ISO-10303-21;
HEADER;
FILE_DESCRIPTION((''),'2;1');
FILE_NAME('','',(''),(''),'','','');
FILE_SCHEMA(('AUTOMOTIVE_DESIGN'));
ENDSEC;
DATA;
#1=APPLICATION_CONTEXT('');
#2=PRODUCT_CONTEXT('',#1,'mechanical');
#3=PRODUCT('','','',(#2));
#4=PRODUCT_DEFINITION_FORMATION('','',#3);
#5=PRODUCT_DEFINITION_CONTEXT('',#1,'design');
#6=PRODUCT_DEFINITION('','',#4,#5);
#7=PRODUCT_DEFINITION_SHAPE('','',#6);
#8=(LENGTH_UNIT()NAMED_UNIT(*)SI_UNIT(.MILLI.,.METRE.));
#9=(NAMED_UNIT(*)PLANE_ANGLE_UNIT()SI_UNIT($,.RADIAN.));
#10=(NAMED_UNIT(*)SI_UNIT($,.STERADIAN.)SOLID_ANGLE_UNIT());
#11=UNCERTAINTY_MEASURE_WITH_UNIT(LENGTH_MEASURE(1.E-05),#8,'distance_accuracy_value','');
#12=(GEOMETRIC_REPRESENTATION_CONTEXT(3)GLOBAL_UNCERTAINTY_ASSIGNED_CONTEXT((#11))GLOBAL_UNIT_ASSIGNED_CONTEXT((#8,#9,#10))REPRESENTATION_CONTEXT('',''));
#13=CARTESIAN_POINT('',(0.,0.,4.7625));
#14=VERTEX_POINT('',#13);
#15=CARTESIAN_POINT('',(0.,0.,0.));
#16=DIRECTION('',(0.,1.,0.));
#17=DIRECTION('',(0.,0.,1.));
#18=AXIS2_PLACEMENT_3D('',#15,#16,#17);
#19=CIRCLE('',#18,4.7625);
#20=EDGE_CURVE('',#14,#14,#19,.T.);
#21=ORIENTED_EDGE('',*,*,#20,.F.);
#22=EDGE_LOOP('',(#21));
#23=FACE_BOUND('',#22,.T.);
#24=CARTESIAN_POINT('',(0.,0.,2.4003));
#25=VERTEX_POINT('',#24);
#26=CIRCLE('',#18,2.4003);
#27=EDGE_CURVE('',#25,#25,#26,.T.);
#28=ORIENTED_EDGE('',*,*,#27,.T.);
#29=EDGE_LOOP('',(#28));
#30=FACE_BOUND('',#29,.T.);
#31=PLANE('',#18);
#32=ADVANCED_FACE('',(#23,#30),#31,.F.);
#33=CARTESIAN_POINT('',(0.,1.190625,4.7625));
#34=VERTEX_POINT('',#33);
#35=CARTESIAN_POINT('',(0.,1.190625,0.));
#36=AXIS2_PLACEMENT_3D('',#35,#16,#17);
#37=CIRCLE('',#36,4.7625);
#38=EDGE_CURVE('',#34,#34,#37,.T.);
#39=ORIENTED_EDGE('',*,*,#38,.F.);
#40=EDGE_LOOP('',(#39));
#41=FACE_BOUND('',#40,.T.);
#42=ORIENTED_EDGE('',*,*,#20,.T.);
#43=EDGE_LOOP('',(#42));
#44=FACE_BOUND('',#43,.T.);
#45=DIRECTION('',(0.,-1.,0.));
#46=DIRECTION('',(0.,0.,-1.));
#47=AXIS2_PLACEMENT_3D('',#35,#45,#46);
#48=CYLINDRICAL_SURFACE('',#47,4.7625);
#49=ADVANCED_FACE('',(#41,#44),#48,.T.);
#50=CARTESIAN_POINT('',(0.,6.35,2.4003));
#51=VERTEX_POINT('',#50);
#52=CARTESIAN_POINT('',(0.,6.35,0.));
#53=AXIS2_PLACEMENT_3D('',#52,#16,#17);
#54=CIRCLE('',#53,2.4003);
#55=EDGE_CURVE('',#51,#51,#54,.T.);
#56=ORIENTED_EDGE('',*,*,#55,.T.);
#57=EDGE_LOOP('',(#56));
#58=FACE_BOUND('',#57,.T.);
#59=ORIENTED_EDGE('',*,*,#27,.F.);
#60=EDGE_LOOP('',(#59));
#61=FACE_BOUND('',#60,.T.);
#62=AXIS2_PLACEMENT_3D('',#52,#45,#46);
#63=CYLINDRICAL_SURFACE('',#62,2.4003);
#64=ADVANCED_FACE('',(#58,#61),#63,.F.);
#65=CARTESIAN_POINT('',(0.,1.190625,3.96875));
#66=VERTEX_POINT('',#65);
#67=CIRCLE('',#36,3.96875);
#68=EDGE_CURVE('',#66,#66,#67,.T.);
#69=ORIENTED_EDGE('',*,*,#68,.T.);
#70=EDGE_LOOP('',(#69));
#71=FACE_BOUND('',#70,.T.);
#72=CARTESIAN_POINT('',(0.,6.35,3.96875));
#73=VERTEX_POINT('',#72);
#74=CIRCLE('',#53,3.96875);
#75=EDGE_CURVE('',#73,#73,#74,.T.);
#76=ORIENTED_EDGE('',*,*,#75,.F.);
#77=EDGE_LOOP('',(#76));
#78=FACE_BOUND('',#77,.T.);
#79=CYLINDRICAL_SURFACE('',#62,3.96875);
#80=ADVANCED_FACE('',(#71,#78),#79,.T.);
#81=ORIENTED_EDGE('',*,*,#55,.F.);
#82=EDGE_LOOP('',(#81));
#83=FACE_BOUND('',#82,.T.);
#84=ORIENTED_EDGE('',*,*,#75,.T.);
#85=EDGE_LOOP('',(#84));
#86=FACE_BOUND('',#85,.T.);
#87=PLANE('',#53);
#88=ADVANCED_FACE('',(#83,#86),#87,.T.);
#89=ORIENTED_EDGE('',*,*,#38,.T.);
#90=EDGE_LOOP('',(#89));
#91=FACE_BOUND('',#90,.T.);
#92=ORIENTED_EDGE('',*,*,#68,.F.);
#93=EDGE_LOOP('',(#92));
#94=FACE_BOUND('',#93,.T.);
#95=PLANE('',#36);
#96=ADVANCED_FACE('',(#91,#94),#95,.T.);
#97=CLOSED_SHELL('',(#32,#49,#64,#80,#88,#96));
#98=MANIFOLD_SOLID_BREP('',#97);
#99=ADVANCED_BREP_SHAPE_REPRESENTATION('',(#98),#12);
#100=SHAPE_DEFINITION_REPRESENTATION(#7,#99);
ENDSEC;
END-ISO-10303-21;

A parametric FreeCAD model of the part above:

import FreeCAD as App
import Part
import Sketcher
from FreeCAD import Vector
Q = App.Units.Quantity

doc = App.newDocument("Part")
body = doc.addObject("PartDesign::Body", "Body")

# Sketch on XZ plane
sketch1 = body.newObject("Sketcher::SketchObject", "Sketch")
sketch1.AttachmentSupport = (doc.getObject("XZ_Plane"), [""])
sketch1.MapMode = "FlatFace"
sketch1.addGeometry(Part.Circle(Vector(0, 0, 0), Vector(0, 0, 1), 4), False)
sketch1.addGeometry(Part.Circle(Vector(0, 0, 0), Vector(0, 0, 1), 2.4), False)
sketch1.addConstraint(Sketcher.Constraint("Coincident", 0, 3, -1, 1))
sketch1.addConstraint(Sketcher.Constraint("Coincident", 1, 3, -1, 1))
sketch1.addConstraint(Sketcher.Constraint("Diameter", 0, Q("0.3125 in")))
sketch1.addConstraint(Sketcher.Constraint("Diameter", 1, Q("0.189 in")))
pad1 = body.newObject("PartDesign::Pad", "Pad")
pad1.Profile = sketch1
pad1.Length = Q("0.25 in")
pad1.Reversed = True

# Sketch on XZ plane
sketch2 = body.newObject("Sketcher::SketchObject", "Sketch001")
sketch2.AttachmentSupport = (doc.getObject("XZ_Plane"), [""])
sketch2.MapMode = "FlatFace"
sketch2.addGeometry(Part.Circle(Vector(0, 0, 0), Vector(0, 0, 1), 4.8), False)
sketch2.addGeometry(Part.Circle(Vector(0, 0, 0), Vector(0, 0, 1), 4), False)
sketch2.addConstraint(Sketcher.Constraint("Coincident", 0, 3, -1, 1))
sketch2.addConstraint(Sketcher.Constraint("Coincident", 1, 3, -1, 1))
sketch2.addConstraint(Sketcher.Constraint("Diameter", 0, Q("0.375 in")))
sketch2.addConstraint(Sketcher.Constraint("Diameter", 1, Q("0.3125 in")))
pad2 = body.newObject("PartDesign::Pad", "Pad001")
pad2.Profile = sketch2
pad2.Length = Q("0.046875 in")
pad2.Reversed = True

doc.recompute()
